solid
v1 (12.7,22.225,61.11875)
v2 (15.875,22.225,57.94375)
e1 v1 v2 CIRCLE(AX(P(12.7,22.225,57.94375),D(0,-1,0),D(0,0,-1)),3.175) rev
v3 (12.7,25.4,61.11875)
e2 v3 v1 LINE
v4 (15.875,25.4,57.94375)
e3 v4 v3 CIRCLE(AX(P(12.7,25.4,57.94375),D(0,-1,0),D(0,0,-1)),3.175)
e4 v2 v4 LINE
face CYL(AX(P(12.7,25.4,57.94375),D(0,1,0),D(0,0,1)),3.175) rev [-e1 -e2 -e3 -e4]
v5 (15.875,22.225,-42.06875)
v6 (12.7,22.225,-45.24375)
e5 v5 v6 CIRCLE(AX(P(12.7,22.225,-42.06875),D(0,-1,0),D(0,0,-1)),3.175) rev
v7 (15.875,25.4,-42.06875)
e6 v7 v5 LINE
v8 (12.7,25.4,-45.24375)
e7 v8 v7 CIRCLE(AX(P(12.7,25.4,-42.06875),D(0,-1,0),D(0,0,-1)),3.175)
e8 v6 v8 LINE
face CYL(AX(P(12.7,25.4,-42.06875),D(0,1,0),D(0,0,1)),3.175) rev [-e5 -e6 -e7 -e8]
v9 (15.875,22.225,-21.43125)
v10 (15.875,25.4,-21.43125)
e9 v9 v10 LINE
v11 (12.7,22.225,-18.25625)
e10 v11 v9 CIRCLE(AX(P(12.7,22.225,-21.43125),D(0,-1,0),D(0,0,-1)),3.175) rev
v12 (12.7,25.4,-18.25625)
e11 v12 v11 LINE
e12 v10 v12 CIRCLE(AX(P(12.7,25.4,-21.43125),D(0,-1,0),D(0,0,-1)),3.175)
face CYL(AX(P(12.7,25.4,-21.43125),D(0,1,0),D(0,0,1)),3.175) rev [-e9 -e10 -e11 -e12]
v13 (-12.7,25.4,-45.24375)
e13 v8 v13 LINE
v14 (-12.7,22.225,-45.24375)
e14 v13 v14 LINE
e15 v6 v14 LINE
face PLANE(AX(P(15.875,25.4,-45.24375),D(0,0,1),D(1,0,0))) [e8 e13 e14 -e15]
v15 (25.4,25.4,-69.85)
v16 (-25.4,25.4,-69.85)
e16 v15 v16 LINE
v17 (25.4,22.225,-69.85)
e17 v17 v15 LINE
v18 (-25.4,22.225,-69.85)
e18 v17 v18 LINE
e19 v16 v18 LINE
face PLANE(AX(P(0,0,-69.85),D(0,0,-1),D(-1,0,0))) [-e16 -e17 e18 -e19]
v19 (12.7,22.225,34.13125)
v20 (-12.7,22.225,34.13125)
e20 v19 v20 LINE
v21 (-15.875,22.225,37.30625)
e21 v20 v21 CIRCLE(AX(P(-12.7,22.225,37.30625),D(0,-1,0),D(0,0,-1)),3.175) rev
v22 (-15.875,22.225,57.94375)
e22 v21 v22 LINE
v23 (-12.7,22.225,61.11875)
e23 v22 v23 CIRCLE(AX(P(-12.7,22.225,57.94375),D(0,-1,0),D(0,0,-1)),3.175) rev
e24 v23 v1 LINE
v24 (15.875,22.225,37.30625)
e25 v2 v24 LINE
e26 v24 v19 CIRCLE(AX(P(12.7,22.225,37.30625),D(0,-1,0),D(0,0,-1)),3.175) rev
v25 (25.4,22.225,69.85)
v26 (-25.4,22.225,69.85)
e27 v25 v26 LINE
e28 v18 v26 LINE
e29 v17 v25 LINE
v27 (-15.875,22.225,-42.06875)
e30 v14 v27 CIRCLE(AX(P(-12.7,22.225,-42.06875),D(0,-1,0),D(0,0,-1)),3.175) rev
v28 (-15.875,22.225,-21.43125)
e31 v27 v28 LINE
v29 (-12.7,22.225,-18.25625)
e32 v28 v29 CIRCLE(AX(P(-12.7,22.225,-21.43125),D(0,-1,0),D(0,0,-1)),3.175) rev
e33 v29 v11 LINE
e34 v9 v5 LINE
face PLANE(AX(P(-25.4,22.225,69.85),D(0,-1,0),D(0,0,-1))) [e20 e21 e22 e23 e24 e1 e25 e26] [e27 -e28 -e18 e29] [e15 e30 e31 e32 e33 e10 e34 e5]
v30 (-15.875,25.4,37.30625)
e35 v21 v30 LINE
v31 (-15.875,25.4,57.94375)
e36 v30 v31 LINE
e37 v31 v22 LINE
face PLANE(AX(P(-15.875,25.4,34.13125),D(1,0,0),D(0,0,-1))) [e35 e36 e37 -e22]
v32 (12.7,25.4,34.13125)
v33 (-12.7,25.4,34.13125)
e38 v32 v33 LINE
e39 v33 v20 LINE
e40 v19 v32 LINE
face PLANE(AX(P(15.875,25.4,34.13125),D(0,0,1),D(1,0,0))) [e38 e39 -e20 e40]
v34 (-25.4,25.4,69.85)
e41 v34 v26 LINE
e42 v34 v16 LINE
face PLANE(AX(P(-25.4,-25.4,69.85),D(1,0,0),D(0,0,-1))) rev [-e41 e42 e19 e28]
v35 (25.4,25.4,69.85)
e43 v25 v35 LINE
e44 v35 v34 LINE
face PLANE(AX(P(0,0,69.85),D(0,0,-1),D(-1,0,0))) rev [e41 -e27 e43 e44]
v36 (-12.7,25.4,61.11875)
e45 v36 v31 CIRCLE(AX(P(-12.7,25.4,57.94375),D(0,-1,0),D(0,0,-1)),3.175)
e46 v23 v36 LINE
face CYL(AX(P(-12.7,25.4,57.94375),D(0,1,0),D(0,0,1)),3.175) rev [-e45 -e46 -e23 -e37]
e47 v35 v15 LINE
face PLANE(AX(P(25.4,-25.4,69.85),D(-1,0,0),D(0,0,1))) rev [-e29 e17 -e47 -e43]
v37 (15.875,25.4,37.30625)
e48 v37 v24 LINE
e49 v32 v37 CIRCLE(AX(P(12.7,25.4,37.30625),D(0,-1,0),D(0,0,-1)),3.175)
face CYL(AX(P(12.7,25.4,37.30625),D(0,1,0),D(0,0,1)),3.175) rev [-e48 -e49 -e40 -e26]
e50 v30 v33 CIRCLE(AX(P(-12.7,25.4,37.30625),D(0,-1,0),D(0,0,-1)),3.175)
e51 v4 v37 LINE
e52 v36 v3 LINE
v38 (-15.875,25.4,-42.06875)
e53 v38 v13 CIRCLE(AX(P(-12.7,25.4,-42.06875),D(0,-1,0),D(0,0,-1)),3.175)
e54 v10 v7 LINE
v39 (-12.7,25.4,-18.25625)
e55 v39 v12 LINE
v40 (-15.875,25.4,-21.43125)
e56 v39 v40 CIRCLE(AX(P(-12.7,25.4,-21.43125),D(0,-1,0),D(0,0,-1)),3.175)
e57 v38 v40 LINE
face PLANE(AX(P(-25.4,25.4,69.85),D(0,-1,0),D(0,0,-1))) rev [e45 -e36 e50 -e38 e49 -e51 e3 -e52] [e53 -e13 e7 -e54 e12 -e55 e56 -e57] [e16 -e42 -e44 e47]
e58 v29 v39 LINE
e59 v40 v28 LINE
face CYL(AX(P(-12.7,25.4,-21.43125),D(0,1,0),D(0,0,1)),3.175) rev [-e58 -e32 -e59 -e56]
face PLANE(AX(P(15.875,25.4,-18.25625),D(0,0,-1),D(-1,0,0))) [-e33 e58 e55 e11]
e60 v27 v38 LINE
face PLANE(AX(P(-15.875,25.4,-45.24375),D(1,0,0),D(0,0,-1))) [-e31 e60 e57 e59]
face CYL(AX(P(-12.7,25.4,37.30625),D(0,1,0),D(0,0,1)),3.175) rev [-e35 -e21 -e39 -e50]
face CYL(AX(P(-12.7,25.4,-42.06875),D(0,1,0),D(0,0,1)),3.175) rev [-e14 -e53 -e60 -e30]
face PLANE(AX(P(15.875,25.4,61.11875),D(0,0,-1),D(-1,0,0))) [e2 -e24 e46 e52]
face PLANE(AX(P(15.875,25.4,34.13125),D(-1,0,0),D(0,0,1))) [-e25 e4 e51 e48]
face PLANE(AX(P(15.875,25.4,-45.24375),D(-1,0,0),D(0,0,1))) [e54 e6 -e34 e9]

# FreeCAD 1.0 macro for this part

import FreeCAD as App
import Part
import Sketcher
from FreeCAD import Vector
Q = App.Units.Quantity


def edges_at(feature, points):
    """Names of the edges that pass closest to the given points."""
    edges = feature.Shape.Edges
    near = lambda p: min(range(len(edges)), key=lambda i: edges[i].distToShape(Part.Vertex(*p))[0])
    return sorted({f"Edge{near(p) + 1}" for p in points})


def faces_at(feature, points):
    """Names of the faces that lie closest to the given points."""
    faces = feature.Shape.Faces
    near = lambda p: min(range(len(faces)), key=lambda i: faces[i].distToShape(Part.Vertex(*p))[0])
    return sorted({f"Face{near(p) + 1}" for p in points})

doc = App.newDocument("Part")
body = doc.addObject("PartDesign::Body", "Body")

# Sketch on XY plane
sketch1 = body.newObject("Sketcher::SketchObject", "Sketch")
sketch1.AttachmentSupport = (doc.getObject("XY_Plane"), [""])
sketch1.MapMode = "FlatFace"
sketch1.addGeometry(Part.LineSegment(Vector(-25, 25, 0), Vector(-25, -25, 0)), False)
sketch1.addGeometry(Part.LineSegment(Vector(-25, -25, 0), Vector(25, -25, 0)), False)
sketch1.addGeometry(Part.LineSegment(Vector(25, -25, 0), Vector(25, 25, 0)), False)
sketch1.addGeometry(Part.LineSegment(Vector(25, 25, 0), Vector(-25, 25, 0)), False)
sketch1.addConstraint(Sketcher.Constraint("Coincident", 0, 2, 1, 1))
sketch1.addConstraint(Sketcher.Constraint("Coincident", 1, 2, 2, 1))
sketch1.addConstraint(Sketcher.Constraint("Coincident", 2, 2, 3, 1))
sketch1.addConstraint(Sketcher.Constraint("Coincident", 3, 2, 0, 1))
sketch1.addConstraint(Sketcher.Constraint("Vertical", 0))
sketch1.addConstraint(Sketcher.Constraint("Horizontal", 1))
sketch1.addConstraint(Sketcher.Constraint("Vertical", 2))
sketch1.addConstraint(Sketcher.Constraint("Horizontal", 3))
sketch1.addConstraint(Sketcher.Constraint("Symmetric", 0, 2, 2, 2, -1, 1))
sketch1.addConstraint(Sketcher.Constraint("Equal", 3, 0))
sketch1.addConstraint(Sketcher.Constraint("DistanceX", 1, 1, 1, 2, Q("2 in")))
pad1 = body.newObject("PartDesign::Pad", "Pad")
pad1.Profile = sketch1
pad1.Length = Q("5.5 in")
pad1.Midplane = True
doc.recompute()

thickness = body.newObject("PartDesign::Thickness", "Thickness")
thickness.Base = (pad1, faces_at(pad1, [(0, 0, 69.85), (0, 0, -69.85)]))
thickness.Value = Q("0.125 in")
thickness.Reversed = True
thickness.Join = "Intersection"

# Sketch on XZ plane
sketch2 = body.newObject("Sketcher::SketchObject", "Sketch001")
sketch2.AttachmentSupport = (doc.getObject("XZ_Plane"), [""])
sketch2.MapMode = "FlatFace"
sketch2.addGeometry(Part.LineSegment(Vector(-16, -45, 0), Vector(-16, -18, 0)), False)
sketch2.addGeometry(Part.LineSegment(Vector(-16, -18, 0), Vector(16, -18, 0)), False)
sketch2.addGeometry(Part.LineSegment(Vector(16, -18, 0), Vector(16, -45, 0)), False)
sketch2.addGeometry(Part.LineSegment(Vector(16, -45, 0), Vector(-16, -45, 0)), False)
sketch2.addGeometry(Part.LineSegment(Vector(-16, 34, 0), Vector(-16, 61, 0)), False)
sketch2.addGeometry(Part.LineSegment(Vector(-16, 61, 0), Vector(16, 61, 0)), False)
sketch2.addGeometry(Part.LineSegment(Vector(16, 61, 0), Vector(16, 34, 0)), False)
sketch2.addGeometry(Part.LineSegment(Vector(16, 34, 0), Vector(-16, 34, 0)), False)
sketch2.addConstraint(Sketcher.Constraint("Coincident", 0, 2, 1, 1))
sketch2.addConstraint(Sketcher.Constraint("Coincident", 1, 2, 2, 1))
sketch2.addConstraint(Sketcher.Constraint("Coincident", 2, 2, 3, 1))
sketch2.addConstraint(Sketcher.Constraint("Coincident", 3, 2, 0, 1))
sketch2.addConstraint(Sketcher.Constraint("Coincident", 4, 2, 5, 1))
sketch2.addConstraint(Sketcher.Constraint("Coincident", 5, 2, 6, 1))
sketch2.addConstraint(Sketcher.Constraint("Coincident", 6, 2, 7, 1))
sketch2.addConstraint(Sketcher.Constraint("Coincident", 7, 2, 4, 1))
sketch2.addConstraint(Sketcher.Constraint("Vertical", 0))
sketch2.addConstraint(Sketcher.Constraint("Horizontal", 1))
sketch2.addConstraint(Sketcher.Constraint("Vertical", 2))
sketch2.addConstraint(Sketcher.Constraint("Horizontal", 3))
sketch2.addConstraint(Sketcher.Constraint("Vertical", 4))
sketch2.addConstraint(Sketcher.Constraint("Horizontal", 5))
sketch2.addConstraint(Sketcher.Constraint("Vertical", 6))
sketch2.addConstraint(Sketcher.Constraint("Horizontal", 7))
sketch2.addConstraint(Sketcher.Constraint("Vertical", 3, 2, 4, 2))
sketch2.addConstraint(Sketcher.Constraint("Vertical", 2, 2, 5, 2))
sketch2.addConstraint(Sketcher.Constraint("Equal", 2, 4))
sketch2.addConstraint(Sketcher.Constraint("DistanceX", 1, 1, 1, 2, Q("1.25 in")))
sketch2.addConstraint(Sketcher.Constraint("DistanceY", 0, 1, 0, 2, Q("1.0625 in")))
sketch2.addConstraint(Sketcher.Constraint("DistanceX", 0, 2, -1, 1, Q("0.625 in")))
sketch2.addConstraint(Sketcher.Constraint("DistanceY", 0, 2, -1, 1, Q("0.71875 in")))
sketch2.addConstraint(Sketcher.Constraint("DistanceY", -1, 1, 4, 2, Q("2.40625 in")))
pocket1 = body.newObject("PartDesign::Pocket", "Pocket")
pocket1.Profile = sketch2
pocket1.Type = "ThroughAll"
doc.recompute()

fillet = body.newObject("PartDesign::Fillet", "Fillet")
fillet.Base = (pocket1, edges_at(pocket1, [
    (15.875, 23.812, -18.256),
    (15.875, 23.812, -45.244),
    (-15.875, 23.812, -45.244),
    (-15.875, 23.812, -18.256),
]))
fillet.Radius = Q("0.125 in")

# Sketch on YZ plane
sketch3 = body.newObject("Sketcher::SketchObject", "Sketch002")
sketch3.AttachmentSupport = (doc.getObject("YZ_Plane"), [""])
sketch3.MapMode = "FlatFace"
sketch3.addGeometry(Part.Circle(Vector(9.5, -31.8, 0), Vector(0, 0, 1), 3.2), False)
sketch3.addGeometry(Part.Circle(Vector(9.5, 44.5, 0), Vector(0, 0, 1), 3.2), False)
sketch3.addConstraint(Sketcher.Constraint("Equal", 0, 1))
sketch3.addConstraint(Sketcher.Constraint("Vertical", 0, 3, 1, 3))
sketch3.addConstraint(Sketcher.Constraint("Diameter", 0, Q("0.25 in")))
sketch3.addConstraint(Sketcher.Constraint("DistanceY", 0, 3, 1, 3, Q("3 in")))
sketch3.addConstraint(Sketcher.Constraint("DistanceY", 0, 3, -1, 1, Q("1.25 in")))
sketch3.addConstraint(Sketcher.Constraint("DistanceX", -1, 1, 0, 3, Q("0.375 in")))
pocket2 = body.newObject("PartDesign::Pocket", "Pocket001")
pocket2.Profile = sketch3
pocket2.Type = "ThroughAll"
pocket2.Midplane = True

# Sketch on YZ plane
sketch4 = body.newObject("Sketcher::SketchObject", "Sketch003")
sketch4.AttachmentSupport = (doc.getObject("YZ_Plane"), [""])
sketch4.MapMode = "FlatFace"
sketch4.addGeometry(Part.Circle(Vector(12.7, -57.1, 0), Vector(0, 0, 1), 2.5), False)
sketch4.addGeometry(Part.Circle(Vector(-12.7, -44.5, 0), Vector(0, 0, 1), 2.5), False)
sketch4.addGeometry(Part.Circle(Vector(-12.7, -31.8, 0), Vector(0, 0, 1), 2.5), False)
sketch4.addGeometry(Part.Circle(Vector(-12.7, -19.1, 0), Vector(0, 0, 1), 2.5), False)
sketch4.addGeometry(Part.Circle(Vector(0, -57.1, 0), Vector(0, 0, 1), 2.5), False)
sketch4.addGeometry(Part.Circle(Vector(-12.7, -57.1, 0), Vector(0, 0, 1), 2.5), False)
sketch4.addGeometry(Part.Circle(Vector(12.7, 61.9, 0), Vector(0, 0, 1), 2.5), False)
sketch4.addGeometry(Part.Circle(Vector(12.7, 11.1, 0), Vector(0, 0, 1), 2.5), False)
sketch4.addGeometry(Part.Circle(Vector(-12.7, 36.5, 0), Vector(0, 0, 1), 2.5), False)
sketch4.addGeometry(Part.Circle(Vector(-12.7, 11.1, 0), Vector(0, 0, 1), 2.5), False)
sketch4.addGeometry(Part.Circle(Vector(-12.7, 61.9, 0), Vector(0, 0, 1), 2.5), False)
sketch4.addConstraint(Sketcher.Constraint("Equal", 0, 1))
sketch4.addConstraint(Sketcher.Constraint("Equal", 1, 2))
sketch4.addConstraint(Sketcher.Constraint("Equal", 2, 3))
sketch4.addConstraint(Sketcher.Constraint("Equal", 3, 4))
sketch4.addConstraint(Sketcher.Constraint("Equal", 4, 5))
sketch4.addConstraint(Sketcher.Constraint("Equal", 5, 6))
sketch4.addConstraint(Sketcher.Constraint("Equal", 6, 7))
sketch4.addConstraint(Sketcher.Constraint("Equal", 7, 8))
sketch4.addConstraint(Sketcher.Constraint("Equal", 8, 9))
sketch4.addConstraint(Sketcher.Constraint("Equal", 9, 10))
sketch4.addConstraint(Sketcher.Constraint("Symmetric", 0, 3, 5, 3, -2))
sketch4.addConstraint(Sketcher.Constraint("Symmetric", 7, 3, 9, 3, -2))
sketch4.addConstraint(Sketcher.Constraint("Symmetric", 6, 3, 10, 3, -2))
sketch4.addConstraint(Sketcher.Constraint("PointOnObject", 4, 3, -2))
sketch4.addConstraint(Sketcher.Constraint("Horizontal", 0, 3, 4, 3))
sketch4.addConstraint(Sketcher.Constraint("Vertical", 1, 3, 2, 3))
sketch4.addConstraint(Sketcher.Constraint("Vertical", 2, 3, 3, 3))
sketch4.addConstraint(Sketcher.Constraint("Vertical", 3, 3, 5, 3))
sketch4.addConstraint(Sketcher.Constraint("Vertical", 0, 3, 6, 3))
sketch4.addConstraint(Sketcher.Constraint("Vertical", 6, 3, 7, 3))
sketch4.addConstraint(Sketcher.Constraint("Vertical", 5, 3, 8, 3))
sketch4.addConstraint(Sketcher.Constraint("Diameter", 0, Q("0.196 in")))
sketch4.addConstraint(Sketcher.Constraint("DistanceX", 1, 3, 0, 3, Q("1 in")))
sketch4.addConstraint(Sketcher.Constraint("DistanceY", 0, 3, 2, 3, Q("1 in")))
sketch4.addConstraint(Sketcher.Constraint("DistanceY", 1, 3, 3, 3, Q("1 in")))
sketch4.addConstraint(Sketcher.Constraint("DistanceY", 7, 3, 6, 3, Q("2 in")))
sketch4.addConstraint(Sketcher.Constraint("DistanceY", 8, 3, 6, 3, Q("1 in")))
sketch4.addConstraint(Sketcher.Constraint("DistanceY", 0, 3, 1, 3, Q("0.5 in")))
sketch4.addConstraint(Sketcher.Constraint("DistanceY", 0, 3, -1, 1, Q("2.25 in")))
sketch4.addConstraint(Sketcher.Constraint("DistanceY", -1, 1, 6, 3, Q("2.4375 in")))
pocket3 = body.newObject("PartDesign::Pocket", "Pocket002")
pocket3.Profile = sketch4
pocket3.Type = "ThroughAll"
pocket3.Midplane = True

# Sketch on XZ plane
sketch5 = body.newObject("Sketcher::SketchObject", "Sketch004")
sketch5.AttachmentSupport = (doc.getObject("XZ_Plane"), [""])
sketch5.MapMode = "FlatFace"
sketch5.addGeometry(Part.Circle(Vector(-12.7, 57.1, 0), Vector(0, 0, 1), 2.5), False)
sketch5.addGeometry(Part.Circle(Vector(0, 57.1, 0), Vector(0, 0, 1), 2.5), False)
sketch5.addGeometry(Part.Circle(Vector(12.7, 57.1, 0), Vector(0, 0, 1), 2.5), False)
sketch5.addConstraint(Sketcher.Constraint("Equal", 0, 1))
sketch5.addConstraint(Sketcher.Constraint("Equal", 1, 2))
sketch5.addConstraint(Sketcher.Constraint("Symmetric", 0, 3, 2, 3, -2))
sketch5.addConstraint(Sketcher.Constraint("PointOnObject", 1, 3, -2))
sketch5.addConstraint(Sketcher.Constraint("Horizontal", 0, 3, 1, 3))
sketch5.addConstraint(Sketcher.Constraint("Diameter", 0, Q("0.196 in")))
sketch5.addConstraint(Sketcher.Constraint("DistanceX", 0, 3, 2, 3, Q("1 in")))
sketch5.addConstraint(Sketcher.Constraint("DistanceY", -1, 1, 0, 3, Q("2.25 in")))
pocket4 = body.newObject("PartDesign::Pocket", "Pocket003")
pocket4.Profile = sketch5
pocket4.Type = "ThroughAll"
pocket4.Midplane = True
doc.recompute()

fillet2 = body.newObject("PartDesign::Fillet", "Fillet001")
fillet2.Base = (pocket4, edges_at(pocket4, [
    (15.875, 23.812, 61.119),
    (15.875, 23.812, 34.131),
    (-15.875, 23.812, 34.131),
    (-15.875, 23.812, 61.119),
]))
fillet2.Radius = Q("0.125 in")

# Sketch on YZ plane
sketch6 = body.newObject("Sketcher::SketchObject", "Sketch005")
sketch6.AttachmentSupport = (doc.getObject("YZ_Plane"), [""])
sketch6.MapMode = "FlatFace"
sketch6.AttachmentOffset = App.Placement(Vector(0, 0, 1 * 25.4), App.Rotation())
sketch6.addGeometry(Part.LineSegment(Vector(22, 70, 0), Vector(-25, 70, 0)), False)
sketch6.addGeometry(Part.LineSegment(Vector(-25, 70, 0), Vector(-25, -70, 0)), False)
sketch6.addGeometry(Part.LineSegment(Vector(-25, -70, 0), Vector(22, -70, 0)), False)
sketch6.addGeometry(Part.LineSegment(Vector(22, -70, 0), Vector(22, 70, 0)), False)
sketch6.addConstraint(Sketcher.Constraint("Coincident", 0, 2, 1, 1))
sketch6.addConstraint(Sketcher.Constraint("Coincident", 1, 2, 2, 1))
sketch6.addConstraint(Sketcher.Constraint("Coincident", 2, 2, 3, 1))
sketch6.addConstraint(Sketcher.Constraint("Coincident", 3, 2, 0, 1))
sketch6.addConstraint(Sketcher.Constraint("Horizontal", 0))
sketch6.addConstraint(Sketcher.Constraint("Vertical", 1))
sketch6.addConstraint(Sketcher.Constraint("Horizontal", 2))
sketch6.addConstraint(Sketcher.Constraint("Vertical", 3))
sketch6.addConstraint(Sketcher.Constraint("DistanceY", 1, 2, 1, 1, Q("5.5 in")))
sketch6.addConstraint(Sketcher.Constraint("DistanceX", 0, 2, -1, 1, Q("1 in")))
sketch6.addConstraint(Sketcher.Constraint("DistanceX", 0, 2, 0, 1, Q("1.875 in")))
sketch6.addConstraint(Sketcher.Constraint("DistanceY", -1, 1, 0, 2, Q("2.75 in")))
pocket5 = body.newObject("PartDesign::Pocket", "Pocket004")
pocket5.Profile = sketch6
pocket5.Type = "ThroughAll"

doc.recompute()
